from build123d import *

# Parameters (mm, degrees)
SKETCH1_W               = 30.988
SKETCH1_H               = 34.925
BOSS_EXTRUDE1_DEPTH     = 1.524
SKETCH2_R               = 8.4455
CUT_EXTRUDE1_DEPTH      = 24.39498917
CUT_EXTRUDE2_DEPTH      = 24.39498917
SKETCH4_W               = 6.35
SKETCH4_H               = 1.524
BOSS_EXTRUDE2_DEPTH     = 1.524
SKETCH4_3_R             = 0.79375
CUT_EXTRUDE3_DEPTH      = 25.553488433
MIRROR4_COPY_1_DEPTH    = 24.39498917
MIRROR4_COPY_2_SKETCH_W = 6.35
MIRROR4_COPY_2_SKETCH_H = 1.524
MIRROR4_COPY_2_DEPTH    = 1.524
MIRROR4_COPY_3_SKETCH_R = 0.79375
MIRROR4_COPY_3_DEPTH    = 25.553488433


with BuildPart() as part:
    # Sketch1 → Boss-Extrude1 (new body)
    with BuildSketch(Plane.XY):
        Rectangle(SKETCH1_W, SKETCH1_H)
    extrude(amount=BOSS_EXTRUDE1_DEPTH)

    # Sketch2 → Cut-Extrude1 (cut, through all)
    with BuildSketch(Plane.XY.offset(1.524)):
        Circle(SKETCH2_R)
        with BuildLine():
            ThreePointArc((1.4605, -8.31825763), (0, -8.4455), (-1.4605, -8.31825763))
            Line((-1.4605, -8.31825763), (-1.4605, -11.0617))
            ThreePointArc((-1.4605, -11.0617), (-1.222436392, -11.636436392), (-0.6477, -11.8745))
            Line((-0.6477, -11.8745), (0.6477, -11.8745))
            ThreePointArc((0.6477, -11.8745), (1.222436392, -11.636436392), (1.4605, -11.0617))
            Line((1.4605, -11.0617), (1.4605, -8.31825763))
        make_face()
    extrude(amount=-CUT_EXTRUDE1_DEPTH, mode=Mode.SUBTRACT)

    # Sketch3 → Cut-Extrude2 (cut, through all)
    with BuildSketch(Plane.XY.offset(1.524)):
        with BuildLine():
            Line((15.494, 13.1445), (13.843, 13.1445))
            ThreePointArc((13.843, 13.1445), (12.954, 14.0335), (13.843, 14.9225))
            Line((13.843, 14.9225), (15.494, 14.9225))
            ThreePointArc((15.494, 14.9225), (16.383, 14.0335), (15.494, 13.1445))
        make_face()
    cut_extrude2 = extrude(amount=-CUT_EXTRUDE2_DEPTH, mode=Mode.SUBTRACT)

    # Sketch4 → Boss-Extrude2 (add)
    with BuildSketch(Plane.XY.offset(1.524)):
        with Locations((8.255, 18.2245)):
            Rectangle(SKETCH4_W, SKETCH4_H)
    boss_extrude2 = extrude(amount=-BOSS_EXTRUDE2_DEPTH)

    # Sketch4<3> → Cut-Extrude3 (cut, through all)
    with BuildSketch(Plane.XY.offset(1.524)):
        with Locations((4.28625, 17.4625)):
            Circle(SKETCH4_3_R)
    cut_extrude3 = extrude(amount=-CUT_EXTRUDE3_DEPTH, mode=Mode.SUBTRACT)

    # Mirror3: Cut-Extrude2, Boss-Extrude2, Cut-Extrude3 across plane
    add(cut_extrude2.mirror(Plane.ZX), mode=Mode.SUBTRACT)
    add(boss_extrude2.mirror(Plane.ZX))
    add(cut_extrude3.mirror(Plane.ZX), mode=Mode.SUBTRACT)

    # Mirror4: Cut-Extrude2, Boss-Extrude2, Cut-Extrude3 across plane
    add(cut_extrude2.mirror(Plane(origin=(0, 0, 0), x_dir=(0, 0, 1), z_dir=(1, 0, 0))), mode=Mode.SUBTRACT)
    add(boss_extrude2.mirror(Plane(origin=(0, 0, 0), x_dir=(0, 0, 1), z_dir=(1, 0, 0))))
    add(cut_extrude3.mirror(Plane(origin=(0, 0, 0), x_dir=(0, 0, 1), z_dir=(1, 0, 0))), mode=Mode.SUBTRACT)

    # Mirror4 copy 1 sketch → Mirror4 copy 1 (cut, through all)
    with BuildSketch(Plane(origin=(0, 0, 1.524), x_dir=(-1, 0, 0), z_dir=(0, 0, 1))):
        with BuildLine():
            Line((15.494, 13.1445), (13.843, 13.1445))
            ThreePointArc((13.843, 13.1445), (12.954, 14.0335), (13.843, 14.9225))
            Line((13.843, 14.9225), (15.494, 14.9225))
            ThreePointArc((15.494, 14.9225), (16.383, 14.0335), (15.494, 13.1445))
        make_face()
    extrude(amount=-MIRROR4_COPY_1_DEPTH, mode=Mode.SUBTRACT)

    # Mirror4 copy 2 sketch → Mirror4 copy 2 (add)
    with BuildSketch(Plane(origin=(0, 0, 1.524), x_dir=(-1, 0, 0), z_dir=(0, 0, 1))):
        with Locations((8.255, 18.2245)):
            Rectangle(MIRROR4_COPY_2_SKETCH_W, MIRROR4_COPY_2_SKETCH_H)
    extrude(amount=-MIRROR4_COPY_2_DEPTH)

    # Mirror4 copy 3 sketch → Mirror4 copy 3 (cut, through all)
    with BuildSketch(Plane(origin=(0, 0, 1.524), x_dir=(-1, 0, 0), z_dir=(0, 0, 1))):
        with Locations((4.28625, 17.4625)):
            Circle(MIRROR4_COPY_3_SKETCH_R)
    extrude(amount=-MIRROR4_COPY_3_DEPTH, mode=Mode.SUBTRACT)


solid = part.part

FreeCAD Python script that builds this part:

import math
import FreeCAD as App
import Part
import Sketcher
Q = App.Units.Quantity


def add_polygon(sketch, points):
    """Adds a closed chain of lines whose ends are joined by coincident constraints."""
    first, n = sketch.GeometryCount, len(points)
    for a, b in zip(points, points[1:] + points[:1]):
        sketch.addGeometry(Part.LineSegment(App.Vector(*a, 0), App.Vector(*b, 0)), False)
    for i in range(n):
        sketch.addConstraint(Sketcher.Constraint("Coincident", first + i, 2, first + (i + 1) % n, 1))

doc = App.newDocument("Part")
body = doc.addObject("PartDesign::Body", "Body")

# Sketch on XY plane
sketch1 = doc.addObject("Sketcher::SketchObject", "Sketch")
body.addObject(sketch1)
sketch1.AttachmentSupport = (doc.XY_Plane, [""])
sketch1.MapMode = "FlatFace"
add_polygon(sketch1, [(-15.494, 17.4625), (-15.494, -17.4625), (15.494, -17.4625), (15.494, 17.4625)])  # lines 0-3
sketch1.addConstraint(Sketcher.Constraint("Vertical", 0))
sketch1.addConstraint(Sketcher.Constraint("Horizontal", 1))
sketch1.addConstraint(Sketcher.Constraint("Vertical", 2))
sketch1.addConstraint(Sketcher.Constraint("Horizontal", 3))
sketch1.addConstraint(Sketcher.Constraint("Symmetric", 0, 2, 2, 2, -1, 1))
sketch1.addConstraint(Sketcher.Constraint("DistanceX", 1, 1, 1, 2, Q("1.22 in")))
sketch1.addConstraint(Sketcher.Constraint("DistanceY", 0, 2, 0, 1, Q("1.375 in")))
pad1 = doc.addObject("PartDesign::Pad", "Pad")
body.addObject(pad1)
pad1.Profile = sketch1
pad1.Length = Q("0.06 in")

# Sketch on XY plane
sketch2 = doc.addObject("Sketcher::SketchObject", "Sketch001")
body.addObject(sketch2)
sketch2.AttachmentSupport = (doc.XY_Plane, [""])
sketch2.MapMode = "FlatFace"
sketch2.AttachmentOffset = App.Placement(App.Vector(0, 0, 0.06 * 25.4), App.Rotation())
sketch2.addGeometry(Part.LineSegment(App.Vector(-1.4605, -8.318258, 0), App.Vector(-1.4605, -11.0617, 0)), False)
sketch2.addGeometry(Part.ArcOfCircle(Part.Circle(App.Vector(-0.6477, -11.0617, 0), App.Vector(0, 0, 1), 0.8128), math.radians(180), math.radians(270)), False)
sketch2.addGeometry(Part.LineSegment(App.Vector(-0.6477, -11.8745, 0), App.Vector(0.6477, -11.8745, 0)), False)
sketch2.addGeometry(Part.ArcOfCircle(Part.Circle(App.Vector(0.6477, -11.0617, 0), App.Vector(0, 0, 1), 0.8128), math.radians(-90), math.radians(0)), False)
sketch2.addGeometry(Part.LineSegment(App.Vector(1.4605, -11.0617, 0), App.Vector(1.4605, -8.318258, 0)), False)
sketch2.addGeometry(Part.ArcOfCircle(Part.Circle(App.Vector(0, 0, 0), App.Vector(0, 0, 1), 8.4455), math.radians(-80.041645), math.radians(260.041645)), False)
sketch2.addConstraint(Sketcher.Constraint("Tangent", 0, 2, 1, 1))
sketch2.addConstraint(Sketcher.Constraint("Tangent", 1, 2, 2, 1))
sketch2.addConstraint(Sketcher.Constraint("Tangent", 2, 2, 3, 1))
sketch2.addConstraint(Sketcher.Constraint("Tangent", 3, 2, 4, 1))
sketch2.addConstraint(Sketcher.Constraint("Coincident", 4, 2, 5, 1))
sketch2.addConstraint(Sketcher.Constraint("Coincident", 5, 2, 0, 1))
sketch2.addConstraint(Sketcher.Constraint("Vertical", 0))
sketch2.addConstraint(Sketcher.Constraint("Horizontal", 2))
sketch2.addConstraint(Sketcher.Constraint("Vertical", 4))
sketch2.addConstraint(Sketcher.Constraint("Coincident", 5, 3, -1, 1))
sketch2.addConstraint(Sketcher.Constraint("Equal", 1, 3))
sketch2.addConstraint(Sketcher.Constraint("Horizontal", 4, 2, 5, 2))
sketch2.addConstraint(Sketcher.Constraint("Radius", 1, Q("0.032 in")))
sketch2.addConstraint(Sketcher.Constraint("Radius", 5, Q("0.3325 in")))
sketch2.addConstraint(Sketcher.Constraint("DistanceX", 2, 1, 2, 2, Q("0.051 in")))
sketch2.addConstraint(Sketcher.Constraint("DistanceY", 1, 3, -1, 1, Q("0.4355 in")))
pocket1 = doc.addObject("PartDesign::Pocket", "Pocket")
body.addObject(pocket1)
pocket1.Profile = sketch2
pocket1.Type = "ThroughAll"

# Sketch on XY plane
sketch3 = doc.addObject("Sketcher::SketchObject", "Sketch002")
body.addObject(sketch3)
sketch3.AttachmentSupport = (doc.XY_Plane, [""])
sketch3.MapMode = "FlatFace"
sketch3.AttachmentOffset = App.Placement(App.Vector(0, 0, 0.06 * 25.4), App.Rotation())
sketch3.addGeometry(Part.LineSegment(App.Vector(13.843, 13.1445, 0), App.Vector(15.494, 13.1445, 0)), False)
sketch3.addGeometry(Part.ArcOfCircle(Part.Circle(App.Vector(15.494, 14.0335, 0), App.Vector(0, 0, 1), 0.889), math.radians(-90), math.radians(90)), False)
sketch3.addGeometry(Part.LineSegment(App.Vector(15.494, 14.9225, 0), App.Vector(13.843, 14.9225, 0)), False)
sketch3.addGeometry(Part.ArcOfCircle(Part.Circle(App.Vector(13.843, 14.0335, 0), App.Vector(0, 0, 1), 0.889), math.radians(90), math.radians(270)), False)
sketch3.addConstraint(Sketcher.Constraint("Tangent", 0, 2, 1, 1))
sketch3.addConstraint(Sketcher.Constraint("Tangent", 1, 2, 2, 1))
sketch3.addConstraint(Sketcher.Constraint("Tangent", 2, 2, 3, 1))
sketch3.addConstraint(Sketcher.Constraint("Tangent", 3, 2, 0, 1))
sketch3.addConstraint(Sketcher.Constraint("Horizontal", 0))
sketch3.addConstraint(Sketcher.Constraint("Horizontal", 2))
sketch3.addConstraint(Sketcher.Constraint("Radius", 1, Q("0.035 in")))
sketch3.addConstraint(Sketcher.Constraint("DistanceX", 0, 1, 0, 2, Q("0.065 in")))
sketch3.addConstraint(Sketcher.Constraint("DistanceX", -1, 1, 1, 3, Q("0.61 in")))
sketch3.addConstraint(Sketcher.Constraint("DistanceY", -1, 1, 1, 3, Q("0.5525 in")))
pocket2 = doc.addObject("PartDesign::Pocket", "Pocket001")
body.addObject(pocket2)
pocket2.Profile = sketch3
pocket2.Type = "ThroughAll"

# Sketch on XY plane
sketch4 = doc.addObject("Sketcher::SketchObject", "Sketch003")
body.addObject(sketch4)
sketch4.AttachmentSupport = (doc.XY_Plane, [""])
sketch4.MapMode = "FlatFace"
sketch4.AttachmentOffset = App.Placement(App.Vector(0, 0, 0.06 * 25.4), App.Rotation())
add_polygon(sketch4, [(5.08, 18.9865), (5.08, 17.4625), (11.43, 17.4625), (11.43, 18.9865)])  # lines 0-3
sketch4.addConstraint(Sketcher.Constraint("Vertical", 0))
sketch4.addConstraint(Sketcher.Constraint("Horizontal", 1))
sketch4.addConstraint(Sketcher.Constraint("Vertical", 2))
sketch4.addConstraint(Sketcher.Constraint("Horizontal", 3))
sketch4.addConstraint(Sketcher.Constraint("DistanceX", 1, 1, 1, 2, Q("0.25 in")))
sketch4.addConstraint(Sketcher.Constraint("DistanceY", 0, 2, 0, 1, Q("0.06 in")))
sketch4.addConstraint(Sketcher.Constraint("DistanceX", -1, 1, 0, 2, Q("0.2 in")))
sketch4.addConstraint(Sketcher.Constraint("DistanceY", -1, 1, 0, 2, Q("0.6875 in")))
pad2 = doc.addObject("PartDesign::Pad", "Pad001")
body.addObject(pad2)
pad2.Profile = sketch4
pad2.Length = Q("0.06 in")
pad2.Reversed = True

# Sketch on XY plane
sketch5 = doc.addObject("Sketcher::SketchObject", "Sketch004")
body.addObject(sketch5)
sketch5.AttachmentSupport = (doc.XY_Plane, [""])
sketch5.MapMode = "FlatFace"
sketch5.AttachmentOffset = App.Placement(App.Vector(0, 0, 0.06 * 25.4), App.Rotation())
sketch5.addGeometry(Part.Circle(App.Vector(4.28625, 17.4625, 0), App.Vector(0, 0, 1), 0.79375), False)
sketch5.addConstraint(Sketcher.Constraint("Diameter", 0, Q("0.0625 in")))
sketch5.addConstraint(Sketcher.Constraint("DistanceY", -1, 1, 0, 3, Q("0.6875 in")))
sketch5.addConstraint(Sketcher.Constraint("DistanceX", -1, 1, 0, 3, 4.28625))
pocket3 = doc.addObject("PartDesign::Pocket", "Pocket002")
body.addObject(pocket3)
pocket3.Profile = sketch5
pocket3.Type = "ThroughAll"
doc.recompute()

mirrored = doc.addObject("PartDesign::Mirrored", "Mirrored")
body.addObject(mirrored)
mirrored.Originals = [pocket2, pad2, pocket3]
mirrored.MirrorPlane = (doc.XZ_Plane, [""])
body.Tip = mirrored
doc.recompute()

mirrored2 = doc.addObject("PartDesign::Mirrored", "Mirrored001")
body.addObject(mirrored2)
mirrored2.Originals = [pocket2, pad2, pocket3]
mirrored2.MirrorPlane = (doc.YZ_Plane, [""])
body.Tip = mirrored2

# Sketch on XY plane
sketch6 = doc.addObject("Sketcher::SketchObject", "Sketch005")
body.addObject(sketch6)
sketch6.AttachmentSupport = (doc.XY_Plane, [""])
sketch6.MapMode = "FlatFace"
sketch6.AttachmentOffset = App.Placement(App.Vector(0, 0, 0.06 * 25.4), App.Rotation())
sketch6.addGeometry(Part.LineSegment(App.Vector(-13.843, -13.1445, 0), App.Vector(-15.494, -13.1445, 0)), False)
sketch6.addGeometry(Part.ArcOfCircle(Part.Circle(App.Vector(-15.494, -14.0335, 0), App.Vector(0, 0, 1), 0.889), math.radians(90), math.radians(270)), False)
sketch6.addGeometry(Part.LineSegment(App.Vector(-15.494, -14.9225, 0), App.Vector(-13.843, -14.9225, 0)), False)
sketch6.addGeometry(Part.ArcOfCircle(Part.Circle(App.Vector(-13.843, -14.0335, 0), App.Vector(0, 0, 1), 0.889), math.radians(-90), math.radians(90)), False)
sketch6.addConstraint(Sketcher.Constraint("Tangent", 0, 2, 1, 1))
sketch6.addConstraint(Sketcher.Constraint("Tangent", 1, 2, 2, 1))
sketch6.addConstraint(Sketcher.Constraint("Tangent", 2, 2, 3, 1))
sketch6.addConstraint(Sketcher.Constraint("Tangent", 3, 2, 0, 1))
sketch6.addConstraint(Sketcher.Constraint("Horizontal", 0))
sketch6.addConstraint(Sketcher.Constraint("Horizontal", 2))
sketch6.addConstraint(Sketcher.Constraint("Radius", 1, Q("0.035 in")))
sketch6.addConstraint(Sketcher.Constraint("DistanceX", 0, 2, 0, 1, Q("0.065 in")))
sketch6.addConstraint(Sketcher.Constraint("DistanceX", 1, 3, -1, 1, Q("0.61 in")))
sketch6.addConstraint(Sketcher.Constraint("DistanceY", 1, 3, -1, 1, Q("0.5525 in")))
pocket4 = doc.addObject("PartDesign::Pocket", "Pocket003")
body.addObject(pocket4)
pocket4.Profile = sketch6
pocket4.Type = "ThroughAll"

# Sketch on XY plane
sketch7 = doc.addObject("Sketcher::SketchObject", "Sketch006")
body.addObject(sketch7)
sketch7.AttachmentSupport = (doc.XY_Plane, [""])
sketch7.MapMode = "FlatFace"
sketch7.AttachmentOffset = App.Placement(App.Vector(0, 0, 0.06 * 25.4), App.Rotation())
add_polygon(sketch7, [(-5.08, -18.9865), (-5.08, -17.4625), (-11.43, -17.4625), (-11.43, -18.9865)])  # lines 0-3
sketch7.addConstraint(Sketcher.Constraint("Vertical", 0))
sketch7.addConstraint(Sketcher.Constraint("Horizontal", 1))
sketch7.addConstraint(Sketcher.Constraint("Vertical", 2))
sketch7.addConstraint(Sketcher.Constraint("Horizontal", 3))
sketch7.addConstraint(Sketcher.Constraint("DistanceX", 1, 2, 1, 1, Q("0.25 in")))
sketch7.addConstraint(Sketcher.Constraint("DistanceY", 0, 1, 0, 2, Q("0.06 in")))
sketch7.addConstraint(Sketcher.Constraint("DistanceX", 0, 2, -1, 1, Q("0.2 in")))
sketch7.addConstraint(Sketcher.Constraint("DistanceY", 0, 2, -1, 1, Q("0.6875 in")))
pad3 = doc.addObject("PartDesign::Pad", "Pad002")
body.addObject(pad3)
pad3.Profile = sketch7
pad3.Length = Q("0.06 in")
pad3.Reversed = True

# Sketch on XY plane
sketch8 = doc.addObject("Sketcher::SketchObject", "Sketch007")
body.addObject(sketch8)
sketch8.AttachmentSupport = (doc.XY_Plane, [""])
sketch8.MapMode = "FlatFace"
sketch8.AttachmentOffset = App.Placement(App.Vector(0, 0, 0.06 * 25.4), App.Rotation())
sketch8.addGeometry(Part.Circle(App.Vector(-4.28625, -17.4625, 0), App.Vector(0, 0, 1), 0.79375), False)
sketch8.addConstraint(Sketcher.Constraint("Diameter", 0, Q("0.0625 in")))
sketch8.addConstraint(Sketcher.Constraint("DistanceY", 0, 3, -1, 1, Q("0.6875 in")))
sketch8.addConstraint(Sketcher.Constraint("DistanceX", 0, 3, -1, 1, 4.28625))
pocket5 = doc.addObject("PartDesign::Pocket", "Pocket004")
body.addObject(pocket5)
pocket5.Profile = sketch8
pocket5.Type = "ThroughAll"

doc.recompute()
